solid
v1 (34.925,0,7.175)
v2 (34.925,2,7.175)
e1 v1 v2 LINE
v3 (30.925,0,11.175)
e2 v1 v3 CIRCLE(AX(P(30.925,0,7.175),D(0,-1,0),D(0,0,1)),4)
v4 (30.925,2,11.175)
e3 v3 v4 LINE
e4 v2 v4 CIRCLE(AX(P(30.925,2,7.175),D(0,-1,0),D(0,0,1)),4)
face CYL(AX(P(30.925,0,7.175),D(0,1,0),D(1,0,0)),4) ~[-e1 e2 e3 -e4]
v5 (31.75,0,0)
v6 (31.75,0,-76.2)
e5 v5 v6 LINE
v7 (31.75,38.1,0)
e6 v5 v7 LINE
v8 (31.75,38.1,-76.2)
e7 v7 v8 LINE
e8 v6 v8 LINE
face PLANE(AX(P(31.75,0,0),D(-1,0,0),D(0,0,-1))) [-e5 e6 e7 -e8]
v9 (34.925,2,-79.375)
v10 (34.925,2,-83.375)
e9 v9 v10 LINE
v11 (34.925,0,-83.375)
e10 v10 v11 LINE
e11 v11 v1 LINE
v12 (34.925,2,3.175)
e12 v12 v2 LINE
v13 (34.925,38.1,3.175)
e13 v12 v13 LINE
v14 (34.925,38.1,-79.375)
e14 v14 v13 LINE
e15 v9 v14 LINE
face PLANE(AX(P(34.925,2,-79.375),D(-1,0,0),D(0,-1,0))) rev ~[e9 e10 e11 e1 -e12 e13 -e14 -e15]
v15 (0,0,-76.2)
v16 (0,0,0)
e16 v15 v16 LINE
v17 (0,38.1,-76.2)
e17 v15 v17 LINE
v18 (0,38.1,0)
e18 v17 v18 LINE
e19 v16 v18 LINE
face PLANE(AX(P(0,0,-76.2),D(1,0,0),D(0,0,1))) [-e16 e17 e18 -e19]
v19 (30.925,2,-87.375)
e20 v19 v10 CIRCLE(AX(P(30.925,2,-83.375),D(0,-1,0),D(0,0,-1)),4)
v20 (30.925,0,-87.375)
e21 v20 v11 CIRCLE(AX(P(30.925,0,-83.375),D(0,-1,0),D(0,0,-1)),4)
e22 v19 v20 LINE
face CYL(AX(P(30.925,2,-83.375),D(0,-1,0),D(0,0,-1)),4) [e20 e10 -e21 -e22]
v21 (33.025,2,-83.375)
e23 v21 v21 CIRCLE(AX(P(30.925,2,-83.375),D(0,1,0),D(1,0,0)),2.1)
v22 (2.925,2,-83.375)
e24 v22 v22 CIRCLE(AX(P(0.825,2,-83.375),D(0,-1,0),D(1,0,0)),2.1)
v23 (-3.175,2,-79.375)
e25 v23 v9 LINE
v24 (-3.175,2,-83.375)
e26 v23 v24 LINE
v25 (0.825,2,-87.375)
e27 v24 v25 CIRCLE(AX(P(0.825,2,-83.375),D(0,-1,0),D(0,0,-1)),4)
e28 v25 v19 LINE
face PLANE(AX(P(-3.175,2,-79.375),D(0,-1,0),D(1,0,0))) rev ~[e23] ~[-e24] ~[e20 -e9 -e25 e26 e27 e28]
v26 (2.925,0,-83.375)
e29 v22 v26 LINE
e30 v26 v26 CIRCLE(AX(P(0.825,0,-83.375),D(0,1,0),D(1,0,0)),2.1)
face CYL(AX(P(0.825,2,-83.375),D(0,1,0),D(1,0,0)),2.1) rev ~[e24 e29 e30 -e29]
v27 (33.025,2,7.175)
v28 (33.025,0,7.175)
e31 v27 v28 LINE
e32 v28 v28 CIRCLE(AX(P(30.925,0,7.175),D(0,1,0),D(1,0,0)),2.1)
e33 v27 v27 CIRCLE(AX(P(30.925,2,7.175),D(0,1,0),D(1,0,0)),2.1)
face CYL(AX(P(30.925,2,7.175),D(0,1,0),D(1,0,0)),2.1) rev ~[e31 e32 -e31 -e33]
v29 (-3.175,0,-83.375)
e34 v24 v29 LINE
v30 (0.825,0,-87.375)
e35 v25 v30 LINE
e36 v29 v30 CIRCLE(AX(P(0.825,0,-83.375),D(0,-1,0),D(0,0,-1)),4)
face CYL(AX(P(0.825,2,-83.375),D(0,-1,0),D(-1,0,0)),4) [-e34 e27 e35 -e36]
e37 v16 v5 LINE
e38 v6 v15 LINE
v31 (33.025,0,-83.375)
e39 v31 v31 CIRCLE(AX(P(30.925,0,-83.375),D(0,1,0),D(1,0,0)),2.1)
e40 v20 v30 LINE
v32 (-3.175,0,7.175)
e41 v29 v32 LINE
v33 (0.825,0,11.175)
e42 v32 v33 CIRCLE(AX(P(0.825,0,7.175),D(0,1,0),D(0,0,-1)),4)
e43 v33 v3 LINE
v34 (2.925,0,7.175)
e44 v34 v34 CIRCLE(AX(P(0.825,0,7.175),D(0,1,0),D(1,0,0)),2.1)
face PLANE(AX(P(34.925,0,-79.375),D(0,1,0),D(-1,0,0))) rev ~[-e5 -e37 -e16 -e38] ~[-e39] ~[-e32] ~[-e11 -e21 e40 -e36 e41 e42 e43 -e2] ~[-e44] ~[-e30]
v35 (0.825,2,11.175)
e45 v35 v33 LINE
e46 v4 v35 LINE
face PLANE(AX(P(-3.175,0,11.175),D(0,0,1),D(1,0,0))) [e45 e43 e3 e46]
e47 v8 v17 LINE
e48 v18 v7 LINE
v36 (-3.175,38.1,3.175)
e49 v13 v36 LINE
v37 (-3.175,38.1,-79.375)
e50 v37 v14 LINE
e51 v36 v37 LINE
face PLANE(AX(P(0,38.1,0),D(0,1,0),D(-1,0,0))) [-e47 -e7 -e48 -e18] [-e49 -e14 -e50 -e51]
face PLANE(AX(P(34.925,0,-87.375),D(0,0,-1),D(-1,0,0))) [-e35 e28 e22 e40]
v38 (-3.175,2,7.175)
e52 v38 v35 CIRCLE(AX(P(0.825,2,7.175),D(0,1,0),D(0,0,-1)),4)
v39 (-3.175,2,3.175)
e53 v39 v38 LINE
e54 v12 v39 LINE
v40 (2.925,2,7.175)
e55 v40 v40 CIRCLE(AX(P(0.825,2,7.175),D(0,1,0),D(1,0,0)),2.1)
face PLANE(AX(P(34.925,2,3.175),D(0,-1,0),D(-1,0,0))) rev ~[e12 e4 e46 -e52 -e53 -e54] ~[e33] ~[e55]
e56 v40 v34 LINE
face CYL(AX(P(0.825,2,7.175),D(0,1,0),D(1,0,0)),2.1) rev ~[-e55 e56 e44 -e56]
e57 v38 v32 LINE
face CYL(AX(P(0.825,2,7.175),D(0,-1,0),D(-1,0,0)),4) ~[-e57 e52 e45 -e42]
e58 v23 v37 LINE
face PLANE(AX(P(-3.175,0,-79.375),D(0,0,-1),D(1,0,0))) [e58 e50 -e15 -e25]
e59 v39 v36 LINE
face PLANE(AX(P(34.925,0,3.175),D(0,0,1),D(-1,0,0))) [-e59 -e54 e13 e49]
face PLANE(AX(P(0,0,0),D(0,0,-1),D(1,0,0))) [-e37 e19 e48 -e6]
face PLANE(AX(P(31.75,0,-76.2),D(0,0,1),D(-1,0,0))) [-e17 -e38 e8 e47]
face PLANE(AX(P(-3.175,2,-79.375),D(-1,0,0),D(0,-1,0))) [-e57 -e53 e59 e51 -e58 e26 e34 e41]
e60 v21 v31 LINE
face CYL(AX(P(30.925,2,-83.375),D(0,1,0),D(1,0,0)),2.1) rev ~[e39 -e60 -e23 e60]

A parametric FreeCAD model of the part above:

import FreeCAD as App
import Part
import Sketcher
from FreeCAD import Vector


def edges_at(feature, points):
    """Names of the edges that pass closest to the given points."""
    edges = feature.Shape.Edges
    near = lambda p: min(range(len(edges)), key=lambda i: edges[i].distToShape(Part.Vertex(*p))[0])
    return sorted({f"Edge{near(p) + 1}" for p in points})

doc = App.newDocument("Part")
body = doc.addObject("PartDesign::Body", "Body")

# Sketch on XZ plane
sketch1 = doc.addObject("Sketcher::SketchObject", "Sketch")
body.addObject(sketch1)
sketch1.AttachmentSupport = (doc.XZ_Plane, [""])
sketch1.MapMode = "FlatFace"
sketch1.addGeometry(Part.LineSegment(Vector(35, 3, 0), Vector(35, -79, 0)), False)
sketch1.addGeometry(Part.LineSegment(Vector(35, -79, 0), Vector(-3, -79, 0)), False)
sketch1.addGeometry(Part.LineSegment(Vector(-3, -79, 0), Vector(-3, 3, 0)), False)
sketch1.addGeometry(Part.LineSegment(Vector(-3, 3, 0), Vector(35, 3, 0)), False)
sketch1.addGeometry(Part.LineSegment(Vector(32, 0, 0), Vector(0, 0, 0)), False)
sketch1.addGeometry(Part.LineSegment(Vector(0, 0, 0), Vector(0, -76, 0)), False)
sketch1.addGeometry(Part.LineSegment(Vector(0, -76, 0), Vector(32, -76, 0)), False)
sketch1.addGeometry(Part.LineSegment(Vector(32, -76, 0), Vector(32, 0, 0)), False)
sketch1.addConstraint(Sketcher.Constraint("Coincident", 0, 2, 1, 1))
sketch1.addConstraint(Sketcher.Constraint("Coincident", 1, 2, 2, 1))
sketch1.addConstraint(Sketcher.Constraint("Coincident", 2, 2, 3, 1))
sketch1.addConstraint(Sketcher.Constraint("Coincident", 3, 2, 0, 1))
sketch1.addConstraint(Sketcher.Constraint("Coincident", 4, 2, 5, 1))
sketch1.addConstraint(Sketcher.Constraint("Coincident", 5, 2, 6, 1))
sketch1.addConstraint(Sketcher.Constraint("Coincident", 6, 2, 7, 1))
sketch1.addConstraint(Sketcher.Constraint("Coincident", 7, 2, 4, 1))
sketch1.addConstraint(Sketcher.Constraint("Vertical", 0))
sketch1.addConstraint(Sketcher.Constraint("Horizontal", 1))
sketch1.addConstraint(Sketcher.Constraint("Vertical", 2))
sketch1.addConstraint(Sketcher.Constraint("Horizontal", 3))
sketch1.addConstraint(Sketcher.Constraint("Horizontal", 4))
sketch1.addConstraint(Sketcher.Constraint("Vertical", 5))
sketch1.addConstraint(Sketcher.Constraint("Horizontal", 6))
sketch1.addConstraint(Sketcher.Constraint("Vertical", 7))
sketch1.addConstraint(Sketcher.Constraint("Coincident", 4, 2, -1, 1))
sketch1.addConstraint(Sketcher.Constraint("DistanceY", 5, 2, 5, 1, 76.2))
sketch1.addConstraint(Sketcher.Constraint("DistanceX", 4, 2, 4, 1, 31.75))
sketch1.addConstraint(Sketcher.Constraint("DistanceX", 1, 2, 1, 1, 38.1))
sketch1.addConstraint(Sketcher.Constraint("DistanceX", 1, 2, -1, 1, 3.175))
sketch1.addConstraint(Sketcher.Constraint("DistanceY", -1, 1, 2, 2, 3.175))
sketch1.addConstraint(Sketcher.Constraint("DistanceY", 1, 2, 5, 2, 3.175))
pad1 = doc.addObject("PartDesign::Pad", "Pad")
body.addObject(pad1)
pad1.Profile = sketch1
pad1.Length = 38.1
pad1.Reversed = True

# Sketch on XY plane
sketch2 = doc.addObject("Sketcher::SketchObject", "Sketch001")
body.addObject(sketch2)
sketch2.AttachmentSupport = (doc.XY_Plane, [""])
sketch2.MapMode = "FlatFace"
sketch2.AttachmentOffset = App.Placement(Vector(0, 0, 3.175), App.Rotation())
sketch2.addGeometry(Part.LineSegment(Vector(-3.2, 0, 0), Vector(34.9, 0, 0)), False)
sketch2.addGeometry(Part.LineSegment(Vector(34.9, 0, 0), Vector(34.9, 2, 0)), False)
sketch2.addGeometry(Part.LineSegment(Vector(34.9, 2, 0), Vector(-3.2, 2, 0)), False)
sketch2.addGeometry(Part.LineSegment(Vector(-3.2, 2, 0), Vector(-3.2, 0, 0)), False)
sketch2.addConstraint(Sketcher.Constraint("Coincident", 0, 2, 1, 1))
sketch2.addConstraint(Sketcher.Constraint("Coincident", 1, 2, 2, 1))
sketch2.addConstraint(Sketcher.Constraint("Coincident", 2, 2, 3, 1))
sketch2.addConstraint(Sketcher.Constraint("Coincident", 3, 2, 0, 1))
sketch2.addConstraint(Sketcher.Constraint("Horizontal", 0))
sketch2.addConstraint(Sketcher.Constraint("Vertical", 1))
sketch2.addConstraint(Sketcher.Constraint("Horizontal", 2))
sketch2.addConstraint(Sketcher.Constraint("Vertical", 3))
sketch2.addConstraint(Sketcher.Constraint("PointOnObject", 0, 2, -1))
sketch2.addConstraint(Sketcher.Constraint("DistanceY", 1, 1, 1, 2, 2.0))
sketch2.addConstraint(Sketcher.Constraint("DistanceX", 0, 1, 0, 2, 38.1))
sketch2.addConstraint(Sketcher.Constraint("DistanceX", -1, 1, 0, 2, 34.925))
pad2 = doc.addObject("PartDesign::Pad", "Pad001")
body.addObject(pad2)
pad2.Profile = sketch2
pad2.Length = 8
doc.recompute()

fillet = doc.addObject("PartDesign::Fillet", "Fillet")
body.addObject(fillet)
fillet.Base = (pad2, edges_at(pad2, [(34.925, 1, 11.175), (-3.175, 1, 11.175)]))
fillet.Radius = 4

# Sketch on XZ plane
sketch3 = doc.addObject("Sketcher::SketchObject", "Sketch002")
body.addObject(sketch3)
sketch3.AttachmentSupport = (doc.XZ_Plane, [""])
sketch3.MapMode = "FlatFace"
sketch3.AttachmentOffset = App.Placement(Vector(0, 0, -2), App.Rotation())
sketch3.addGeometry(Part.Circle(Vector(0.8, 7.2, 0), Vector(0, 0, 1), 2.1), False)
sketch3.addGeometry(Part.Circle(Vector(30.9, 7.2, 0), Vector(0, 0, 1), 2.1), False)
sketch3.addConstraint(Sketcher.Constraint("Equal", 0, 1))
sketch3.addConstraint(Sketcher.Constraint("Horizontal", 0, 3, 1, 3))
sketch3.addConstraint(Sketcher.Constraint("Diameter", 0, 4.2))
sketch3.addConstraint(Sketcher.Constraint("DistanceX", 0, 3, 1, 3, 30.1))
sketch3.addConstraint(Sketcher.Constraint("DistanceX", -1, 1, 0, 3, 0.825))
sketch3.addConstraint(Sketcher.Constraint("DistanceY", -1, 1, 0, 3, 7.175))
pocket1 = doc.addObject("PartDesign::Pocket", "Pocket")
body.addObject(pocket1)
pocket1.Profile = sketch3
pocket1.Length = 8
pocket1.Reversed = True

# Sketch on XY plane
sketch4 = doc.addObject("Sketcher::SketchObject", "Sketch003")
body.addObject(sketch4)
sketch4.AttachmentSupport = (doc.XY_Plane, [""])
sketch4.MapMode = "FlatFace"
sketch4.AttachmentOffset = App.Placement(Vector(0, 0, -79.375), App.Rotation())
sketch4.addGeometry(Part.LineSegment(Vector(-3.2, 0, 0), Vector(-3.2, 2, 0)), False)
sketch4.addGeometry(Part.LineSegment(Vector(-3.2, 2, 0), Vector(34.9, 2, 0)), False)
sketch4.addGeometry(Part.LineSegment(Vector(34.9, 2, 0), Vector(34.9, 0, 0)), False)
sketch4.addGeometry(Part.LineSegment(Vector(34.9, 0, 0), Vector(-3.2, 0, 0)), False)
sketch4.addConstraint(Sketcher.Constraint("Coincident", 0, 2, 1, 1))
sketch4.addConstraint(Sketcher.Constraint("Coincident", 1, 2, 2, 1))
sketch4.addConstraint(Sketcher.Constraint("Coincident", 2, 2, 3, 1))
sketch4.addConstraint(Sketcher.Constraint("Coincident", 3, 2, 0, 1))
sketch4.addConstraint(Sketcher.Constraint("Vertical", 0))
sketch4.addConstraint(Sketcher.Constraint("Horizontal", 1))
sketch4.addConstraint(Sketcher.Constraint("Vertical", 2))
sketch4.addConstraint(Sketcher.Constraint("Horizontal", 3))
sketch4.addConstraint(Sketcher.Constraint("PointOnObject", 2, 2, -1))
sketch4.addConstraint(Sketcher.Constraint("DistanceY", 0, 1, 0, 2, 2.0))
sketch4.addConstraint(Sketcher.Constraint("DistanceX", 1, 1, 1, 2, 38.1))
sketch4.addConstraint(Sketcher.Constraint("DistanceX", 0, 2, -1, 1, 3.175))
pad3 = doc.addObject("PartDesign::Pad", "Pad002")
body.addObject(pad3)
pad3.Profile = sketch4
pad3.Length = 8
pad3.Reversed = True
doc.recompute()

fillet2 = doc.addObject("PartDesign::Fillet", "Fillet001")
body.addObject(fillet2)
fillet2.Base = (pad3, edges_at(pad3, [(34.925, 1, -87.375), (-3.175, 1, -87.375)]))
fillet2.Radius = 4

# Sketch on XZ plane
sketch5 = doc.addObject("Sketcher::SketchObject", "Sketch004")
body.addObject(sketch5)
sketch5.AttachmentSupport = (doc.XZ_Plane, [""])
sketch5.MapMode = "FlatFace"
sketch5.AttachmentOffset = App.Placement(Vector(0, 0, -2), App.Rotation())
sketch5.addGeometry(Part.Circle(Vector(30.9, -83.4, 0), Vector(0, 0, 1), 2.1), False)
sketch5.addGeometry(Part.Circle(Vector(0.8, -83.4, 0), Vector(0, 0, 1), 2.1), False)
sketch5.addConstraint(Sketcher.Constraint("Equal", 0, 1))
sketch5.addConstraint(Sketcher.Constraint("Horizontal", 0, 3, 1, 3))
sketch5.addConstraint(Sketcher.Constraint("Diameter", 0, 4.2))
sketch5.addConstraint(Sketcher.Constraint("DistanceX", 1, 3, 0, 3, 30.1))
sketch5.addConstraint(Sketcher.Constraint("DistanceX", -1, 1, 0, 3, 30.925))
sketch5.addConstraint(Sketcher.Constraint("DistanceY", 0, 3, -1, 1, 83.375))
pocket2 = doc.addObject("PartDesign::Pocket", "Pocket001")
body.addObject(pocket2)
pocket2.Profile = sketch5
pocket2.Length = 8
pocket2.Reversed = True

doc.recompute()
